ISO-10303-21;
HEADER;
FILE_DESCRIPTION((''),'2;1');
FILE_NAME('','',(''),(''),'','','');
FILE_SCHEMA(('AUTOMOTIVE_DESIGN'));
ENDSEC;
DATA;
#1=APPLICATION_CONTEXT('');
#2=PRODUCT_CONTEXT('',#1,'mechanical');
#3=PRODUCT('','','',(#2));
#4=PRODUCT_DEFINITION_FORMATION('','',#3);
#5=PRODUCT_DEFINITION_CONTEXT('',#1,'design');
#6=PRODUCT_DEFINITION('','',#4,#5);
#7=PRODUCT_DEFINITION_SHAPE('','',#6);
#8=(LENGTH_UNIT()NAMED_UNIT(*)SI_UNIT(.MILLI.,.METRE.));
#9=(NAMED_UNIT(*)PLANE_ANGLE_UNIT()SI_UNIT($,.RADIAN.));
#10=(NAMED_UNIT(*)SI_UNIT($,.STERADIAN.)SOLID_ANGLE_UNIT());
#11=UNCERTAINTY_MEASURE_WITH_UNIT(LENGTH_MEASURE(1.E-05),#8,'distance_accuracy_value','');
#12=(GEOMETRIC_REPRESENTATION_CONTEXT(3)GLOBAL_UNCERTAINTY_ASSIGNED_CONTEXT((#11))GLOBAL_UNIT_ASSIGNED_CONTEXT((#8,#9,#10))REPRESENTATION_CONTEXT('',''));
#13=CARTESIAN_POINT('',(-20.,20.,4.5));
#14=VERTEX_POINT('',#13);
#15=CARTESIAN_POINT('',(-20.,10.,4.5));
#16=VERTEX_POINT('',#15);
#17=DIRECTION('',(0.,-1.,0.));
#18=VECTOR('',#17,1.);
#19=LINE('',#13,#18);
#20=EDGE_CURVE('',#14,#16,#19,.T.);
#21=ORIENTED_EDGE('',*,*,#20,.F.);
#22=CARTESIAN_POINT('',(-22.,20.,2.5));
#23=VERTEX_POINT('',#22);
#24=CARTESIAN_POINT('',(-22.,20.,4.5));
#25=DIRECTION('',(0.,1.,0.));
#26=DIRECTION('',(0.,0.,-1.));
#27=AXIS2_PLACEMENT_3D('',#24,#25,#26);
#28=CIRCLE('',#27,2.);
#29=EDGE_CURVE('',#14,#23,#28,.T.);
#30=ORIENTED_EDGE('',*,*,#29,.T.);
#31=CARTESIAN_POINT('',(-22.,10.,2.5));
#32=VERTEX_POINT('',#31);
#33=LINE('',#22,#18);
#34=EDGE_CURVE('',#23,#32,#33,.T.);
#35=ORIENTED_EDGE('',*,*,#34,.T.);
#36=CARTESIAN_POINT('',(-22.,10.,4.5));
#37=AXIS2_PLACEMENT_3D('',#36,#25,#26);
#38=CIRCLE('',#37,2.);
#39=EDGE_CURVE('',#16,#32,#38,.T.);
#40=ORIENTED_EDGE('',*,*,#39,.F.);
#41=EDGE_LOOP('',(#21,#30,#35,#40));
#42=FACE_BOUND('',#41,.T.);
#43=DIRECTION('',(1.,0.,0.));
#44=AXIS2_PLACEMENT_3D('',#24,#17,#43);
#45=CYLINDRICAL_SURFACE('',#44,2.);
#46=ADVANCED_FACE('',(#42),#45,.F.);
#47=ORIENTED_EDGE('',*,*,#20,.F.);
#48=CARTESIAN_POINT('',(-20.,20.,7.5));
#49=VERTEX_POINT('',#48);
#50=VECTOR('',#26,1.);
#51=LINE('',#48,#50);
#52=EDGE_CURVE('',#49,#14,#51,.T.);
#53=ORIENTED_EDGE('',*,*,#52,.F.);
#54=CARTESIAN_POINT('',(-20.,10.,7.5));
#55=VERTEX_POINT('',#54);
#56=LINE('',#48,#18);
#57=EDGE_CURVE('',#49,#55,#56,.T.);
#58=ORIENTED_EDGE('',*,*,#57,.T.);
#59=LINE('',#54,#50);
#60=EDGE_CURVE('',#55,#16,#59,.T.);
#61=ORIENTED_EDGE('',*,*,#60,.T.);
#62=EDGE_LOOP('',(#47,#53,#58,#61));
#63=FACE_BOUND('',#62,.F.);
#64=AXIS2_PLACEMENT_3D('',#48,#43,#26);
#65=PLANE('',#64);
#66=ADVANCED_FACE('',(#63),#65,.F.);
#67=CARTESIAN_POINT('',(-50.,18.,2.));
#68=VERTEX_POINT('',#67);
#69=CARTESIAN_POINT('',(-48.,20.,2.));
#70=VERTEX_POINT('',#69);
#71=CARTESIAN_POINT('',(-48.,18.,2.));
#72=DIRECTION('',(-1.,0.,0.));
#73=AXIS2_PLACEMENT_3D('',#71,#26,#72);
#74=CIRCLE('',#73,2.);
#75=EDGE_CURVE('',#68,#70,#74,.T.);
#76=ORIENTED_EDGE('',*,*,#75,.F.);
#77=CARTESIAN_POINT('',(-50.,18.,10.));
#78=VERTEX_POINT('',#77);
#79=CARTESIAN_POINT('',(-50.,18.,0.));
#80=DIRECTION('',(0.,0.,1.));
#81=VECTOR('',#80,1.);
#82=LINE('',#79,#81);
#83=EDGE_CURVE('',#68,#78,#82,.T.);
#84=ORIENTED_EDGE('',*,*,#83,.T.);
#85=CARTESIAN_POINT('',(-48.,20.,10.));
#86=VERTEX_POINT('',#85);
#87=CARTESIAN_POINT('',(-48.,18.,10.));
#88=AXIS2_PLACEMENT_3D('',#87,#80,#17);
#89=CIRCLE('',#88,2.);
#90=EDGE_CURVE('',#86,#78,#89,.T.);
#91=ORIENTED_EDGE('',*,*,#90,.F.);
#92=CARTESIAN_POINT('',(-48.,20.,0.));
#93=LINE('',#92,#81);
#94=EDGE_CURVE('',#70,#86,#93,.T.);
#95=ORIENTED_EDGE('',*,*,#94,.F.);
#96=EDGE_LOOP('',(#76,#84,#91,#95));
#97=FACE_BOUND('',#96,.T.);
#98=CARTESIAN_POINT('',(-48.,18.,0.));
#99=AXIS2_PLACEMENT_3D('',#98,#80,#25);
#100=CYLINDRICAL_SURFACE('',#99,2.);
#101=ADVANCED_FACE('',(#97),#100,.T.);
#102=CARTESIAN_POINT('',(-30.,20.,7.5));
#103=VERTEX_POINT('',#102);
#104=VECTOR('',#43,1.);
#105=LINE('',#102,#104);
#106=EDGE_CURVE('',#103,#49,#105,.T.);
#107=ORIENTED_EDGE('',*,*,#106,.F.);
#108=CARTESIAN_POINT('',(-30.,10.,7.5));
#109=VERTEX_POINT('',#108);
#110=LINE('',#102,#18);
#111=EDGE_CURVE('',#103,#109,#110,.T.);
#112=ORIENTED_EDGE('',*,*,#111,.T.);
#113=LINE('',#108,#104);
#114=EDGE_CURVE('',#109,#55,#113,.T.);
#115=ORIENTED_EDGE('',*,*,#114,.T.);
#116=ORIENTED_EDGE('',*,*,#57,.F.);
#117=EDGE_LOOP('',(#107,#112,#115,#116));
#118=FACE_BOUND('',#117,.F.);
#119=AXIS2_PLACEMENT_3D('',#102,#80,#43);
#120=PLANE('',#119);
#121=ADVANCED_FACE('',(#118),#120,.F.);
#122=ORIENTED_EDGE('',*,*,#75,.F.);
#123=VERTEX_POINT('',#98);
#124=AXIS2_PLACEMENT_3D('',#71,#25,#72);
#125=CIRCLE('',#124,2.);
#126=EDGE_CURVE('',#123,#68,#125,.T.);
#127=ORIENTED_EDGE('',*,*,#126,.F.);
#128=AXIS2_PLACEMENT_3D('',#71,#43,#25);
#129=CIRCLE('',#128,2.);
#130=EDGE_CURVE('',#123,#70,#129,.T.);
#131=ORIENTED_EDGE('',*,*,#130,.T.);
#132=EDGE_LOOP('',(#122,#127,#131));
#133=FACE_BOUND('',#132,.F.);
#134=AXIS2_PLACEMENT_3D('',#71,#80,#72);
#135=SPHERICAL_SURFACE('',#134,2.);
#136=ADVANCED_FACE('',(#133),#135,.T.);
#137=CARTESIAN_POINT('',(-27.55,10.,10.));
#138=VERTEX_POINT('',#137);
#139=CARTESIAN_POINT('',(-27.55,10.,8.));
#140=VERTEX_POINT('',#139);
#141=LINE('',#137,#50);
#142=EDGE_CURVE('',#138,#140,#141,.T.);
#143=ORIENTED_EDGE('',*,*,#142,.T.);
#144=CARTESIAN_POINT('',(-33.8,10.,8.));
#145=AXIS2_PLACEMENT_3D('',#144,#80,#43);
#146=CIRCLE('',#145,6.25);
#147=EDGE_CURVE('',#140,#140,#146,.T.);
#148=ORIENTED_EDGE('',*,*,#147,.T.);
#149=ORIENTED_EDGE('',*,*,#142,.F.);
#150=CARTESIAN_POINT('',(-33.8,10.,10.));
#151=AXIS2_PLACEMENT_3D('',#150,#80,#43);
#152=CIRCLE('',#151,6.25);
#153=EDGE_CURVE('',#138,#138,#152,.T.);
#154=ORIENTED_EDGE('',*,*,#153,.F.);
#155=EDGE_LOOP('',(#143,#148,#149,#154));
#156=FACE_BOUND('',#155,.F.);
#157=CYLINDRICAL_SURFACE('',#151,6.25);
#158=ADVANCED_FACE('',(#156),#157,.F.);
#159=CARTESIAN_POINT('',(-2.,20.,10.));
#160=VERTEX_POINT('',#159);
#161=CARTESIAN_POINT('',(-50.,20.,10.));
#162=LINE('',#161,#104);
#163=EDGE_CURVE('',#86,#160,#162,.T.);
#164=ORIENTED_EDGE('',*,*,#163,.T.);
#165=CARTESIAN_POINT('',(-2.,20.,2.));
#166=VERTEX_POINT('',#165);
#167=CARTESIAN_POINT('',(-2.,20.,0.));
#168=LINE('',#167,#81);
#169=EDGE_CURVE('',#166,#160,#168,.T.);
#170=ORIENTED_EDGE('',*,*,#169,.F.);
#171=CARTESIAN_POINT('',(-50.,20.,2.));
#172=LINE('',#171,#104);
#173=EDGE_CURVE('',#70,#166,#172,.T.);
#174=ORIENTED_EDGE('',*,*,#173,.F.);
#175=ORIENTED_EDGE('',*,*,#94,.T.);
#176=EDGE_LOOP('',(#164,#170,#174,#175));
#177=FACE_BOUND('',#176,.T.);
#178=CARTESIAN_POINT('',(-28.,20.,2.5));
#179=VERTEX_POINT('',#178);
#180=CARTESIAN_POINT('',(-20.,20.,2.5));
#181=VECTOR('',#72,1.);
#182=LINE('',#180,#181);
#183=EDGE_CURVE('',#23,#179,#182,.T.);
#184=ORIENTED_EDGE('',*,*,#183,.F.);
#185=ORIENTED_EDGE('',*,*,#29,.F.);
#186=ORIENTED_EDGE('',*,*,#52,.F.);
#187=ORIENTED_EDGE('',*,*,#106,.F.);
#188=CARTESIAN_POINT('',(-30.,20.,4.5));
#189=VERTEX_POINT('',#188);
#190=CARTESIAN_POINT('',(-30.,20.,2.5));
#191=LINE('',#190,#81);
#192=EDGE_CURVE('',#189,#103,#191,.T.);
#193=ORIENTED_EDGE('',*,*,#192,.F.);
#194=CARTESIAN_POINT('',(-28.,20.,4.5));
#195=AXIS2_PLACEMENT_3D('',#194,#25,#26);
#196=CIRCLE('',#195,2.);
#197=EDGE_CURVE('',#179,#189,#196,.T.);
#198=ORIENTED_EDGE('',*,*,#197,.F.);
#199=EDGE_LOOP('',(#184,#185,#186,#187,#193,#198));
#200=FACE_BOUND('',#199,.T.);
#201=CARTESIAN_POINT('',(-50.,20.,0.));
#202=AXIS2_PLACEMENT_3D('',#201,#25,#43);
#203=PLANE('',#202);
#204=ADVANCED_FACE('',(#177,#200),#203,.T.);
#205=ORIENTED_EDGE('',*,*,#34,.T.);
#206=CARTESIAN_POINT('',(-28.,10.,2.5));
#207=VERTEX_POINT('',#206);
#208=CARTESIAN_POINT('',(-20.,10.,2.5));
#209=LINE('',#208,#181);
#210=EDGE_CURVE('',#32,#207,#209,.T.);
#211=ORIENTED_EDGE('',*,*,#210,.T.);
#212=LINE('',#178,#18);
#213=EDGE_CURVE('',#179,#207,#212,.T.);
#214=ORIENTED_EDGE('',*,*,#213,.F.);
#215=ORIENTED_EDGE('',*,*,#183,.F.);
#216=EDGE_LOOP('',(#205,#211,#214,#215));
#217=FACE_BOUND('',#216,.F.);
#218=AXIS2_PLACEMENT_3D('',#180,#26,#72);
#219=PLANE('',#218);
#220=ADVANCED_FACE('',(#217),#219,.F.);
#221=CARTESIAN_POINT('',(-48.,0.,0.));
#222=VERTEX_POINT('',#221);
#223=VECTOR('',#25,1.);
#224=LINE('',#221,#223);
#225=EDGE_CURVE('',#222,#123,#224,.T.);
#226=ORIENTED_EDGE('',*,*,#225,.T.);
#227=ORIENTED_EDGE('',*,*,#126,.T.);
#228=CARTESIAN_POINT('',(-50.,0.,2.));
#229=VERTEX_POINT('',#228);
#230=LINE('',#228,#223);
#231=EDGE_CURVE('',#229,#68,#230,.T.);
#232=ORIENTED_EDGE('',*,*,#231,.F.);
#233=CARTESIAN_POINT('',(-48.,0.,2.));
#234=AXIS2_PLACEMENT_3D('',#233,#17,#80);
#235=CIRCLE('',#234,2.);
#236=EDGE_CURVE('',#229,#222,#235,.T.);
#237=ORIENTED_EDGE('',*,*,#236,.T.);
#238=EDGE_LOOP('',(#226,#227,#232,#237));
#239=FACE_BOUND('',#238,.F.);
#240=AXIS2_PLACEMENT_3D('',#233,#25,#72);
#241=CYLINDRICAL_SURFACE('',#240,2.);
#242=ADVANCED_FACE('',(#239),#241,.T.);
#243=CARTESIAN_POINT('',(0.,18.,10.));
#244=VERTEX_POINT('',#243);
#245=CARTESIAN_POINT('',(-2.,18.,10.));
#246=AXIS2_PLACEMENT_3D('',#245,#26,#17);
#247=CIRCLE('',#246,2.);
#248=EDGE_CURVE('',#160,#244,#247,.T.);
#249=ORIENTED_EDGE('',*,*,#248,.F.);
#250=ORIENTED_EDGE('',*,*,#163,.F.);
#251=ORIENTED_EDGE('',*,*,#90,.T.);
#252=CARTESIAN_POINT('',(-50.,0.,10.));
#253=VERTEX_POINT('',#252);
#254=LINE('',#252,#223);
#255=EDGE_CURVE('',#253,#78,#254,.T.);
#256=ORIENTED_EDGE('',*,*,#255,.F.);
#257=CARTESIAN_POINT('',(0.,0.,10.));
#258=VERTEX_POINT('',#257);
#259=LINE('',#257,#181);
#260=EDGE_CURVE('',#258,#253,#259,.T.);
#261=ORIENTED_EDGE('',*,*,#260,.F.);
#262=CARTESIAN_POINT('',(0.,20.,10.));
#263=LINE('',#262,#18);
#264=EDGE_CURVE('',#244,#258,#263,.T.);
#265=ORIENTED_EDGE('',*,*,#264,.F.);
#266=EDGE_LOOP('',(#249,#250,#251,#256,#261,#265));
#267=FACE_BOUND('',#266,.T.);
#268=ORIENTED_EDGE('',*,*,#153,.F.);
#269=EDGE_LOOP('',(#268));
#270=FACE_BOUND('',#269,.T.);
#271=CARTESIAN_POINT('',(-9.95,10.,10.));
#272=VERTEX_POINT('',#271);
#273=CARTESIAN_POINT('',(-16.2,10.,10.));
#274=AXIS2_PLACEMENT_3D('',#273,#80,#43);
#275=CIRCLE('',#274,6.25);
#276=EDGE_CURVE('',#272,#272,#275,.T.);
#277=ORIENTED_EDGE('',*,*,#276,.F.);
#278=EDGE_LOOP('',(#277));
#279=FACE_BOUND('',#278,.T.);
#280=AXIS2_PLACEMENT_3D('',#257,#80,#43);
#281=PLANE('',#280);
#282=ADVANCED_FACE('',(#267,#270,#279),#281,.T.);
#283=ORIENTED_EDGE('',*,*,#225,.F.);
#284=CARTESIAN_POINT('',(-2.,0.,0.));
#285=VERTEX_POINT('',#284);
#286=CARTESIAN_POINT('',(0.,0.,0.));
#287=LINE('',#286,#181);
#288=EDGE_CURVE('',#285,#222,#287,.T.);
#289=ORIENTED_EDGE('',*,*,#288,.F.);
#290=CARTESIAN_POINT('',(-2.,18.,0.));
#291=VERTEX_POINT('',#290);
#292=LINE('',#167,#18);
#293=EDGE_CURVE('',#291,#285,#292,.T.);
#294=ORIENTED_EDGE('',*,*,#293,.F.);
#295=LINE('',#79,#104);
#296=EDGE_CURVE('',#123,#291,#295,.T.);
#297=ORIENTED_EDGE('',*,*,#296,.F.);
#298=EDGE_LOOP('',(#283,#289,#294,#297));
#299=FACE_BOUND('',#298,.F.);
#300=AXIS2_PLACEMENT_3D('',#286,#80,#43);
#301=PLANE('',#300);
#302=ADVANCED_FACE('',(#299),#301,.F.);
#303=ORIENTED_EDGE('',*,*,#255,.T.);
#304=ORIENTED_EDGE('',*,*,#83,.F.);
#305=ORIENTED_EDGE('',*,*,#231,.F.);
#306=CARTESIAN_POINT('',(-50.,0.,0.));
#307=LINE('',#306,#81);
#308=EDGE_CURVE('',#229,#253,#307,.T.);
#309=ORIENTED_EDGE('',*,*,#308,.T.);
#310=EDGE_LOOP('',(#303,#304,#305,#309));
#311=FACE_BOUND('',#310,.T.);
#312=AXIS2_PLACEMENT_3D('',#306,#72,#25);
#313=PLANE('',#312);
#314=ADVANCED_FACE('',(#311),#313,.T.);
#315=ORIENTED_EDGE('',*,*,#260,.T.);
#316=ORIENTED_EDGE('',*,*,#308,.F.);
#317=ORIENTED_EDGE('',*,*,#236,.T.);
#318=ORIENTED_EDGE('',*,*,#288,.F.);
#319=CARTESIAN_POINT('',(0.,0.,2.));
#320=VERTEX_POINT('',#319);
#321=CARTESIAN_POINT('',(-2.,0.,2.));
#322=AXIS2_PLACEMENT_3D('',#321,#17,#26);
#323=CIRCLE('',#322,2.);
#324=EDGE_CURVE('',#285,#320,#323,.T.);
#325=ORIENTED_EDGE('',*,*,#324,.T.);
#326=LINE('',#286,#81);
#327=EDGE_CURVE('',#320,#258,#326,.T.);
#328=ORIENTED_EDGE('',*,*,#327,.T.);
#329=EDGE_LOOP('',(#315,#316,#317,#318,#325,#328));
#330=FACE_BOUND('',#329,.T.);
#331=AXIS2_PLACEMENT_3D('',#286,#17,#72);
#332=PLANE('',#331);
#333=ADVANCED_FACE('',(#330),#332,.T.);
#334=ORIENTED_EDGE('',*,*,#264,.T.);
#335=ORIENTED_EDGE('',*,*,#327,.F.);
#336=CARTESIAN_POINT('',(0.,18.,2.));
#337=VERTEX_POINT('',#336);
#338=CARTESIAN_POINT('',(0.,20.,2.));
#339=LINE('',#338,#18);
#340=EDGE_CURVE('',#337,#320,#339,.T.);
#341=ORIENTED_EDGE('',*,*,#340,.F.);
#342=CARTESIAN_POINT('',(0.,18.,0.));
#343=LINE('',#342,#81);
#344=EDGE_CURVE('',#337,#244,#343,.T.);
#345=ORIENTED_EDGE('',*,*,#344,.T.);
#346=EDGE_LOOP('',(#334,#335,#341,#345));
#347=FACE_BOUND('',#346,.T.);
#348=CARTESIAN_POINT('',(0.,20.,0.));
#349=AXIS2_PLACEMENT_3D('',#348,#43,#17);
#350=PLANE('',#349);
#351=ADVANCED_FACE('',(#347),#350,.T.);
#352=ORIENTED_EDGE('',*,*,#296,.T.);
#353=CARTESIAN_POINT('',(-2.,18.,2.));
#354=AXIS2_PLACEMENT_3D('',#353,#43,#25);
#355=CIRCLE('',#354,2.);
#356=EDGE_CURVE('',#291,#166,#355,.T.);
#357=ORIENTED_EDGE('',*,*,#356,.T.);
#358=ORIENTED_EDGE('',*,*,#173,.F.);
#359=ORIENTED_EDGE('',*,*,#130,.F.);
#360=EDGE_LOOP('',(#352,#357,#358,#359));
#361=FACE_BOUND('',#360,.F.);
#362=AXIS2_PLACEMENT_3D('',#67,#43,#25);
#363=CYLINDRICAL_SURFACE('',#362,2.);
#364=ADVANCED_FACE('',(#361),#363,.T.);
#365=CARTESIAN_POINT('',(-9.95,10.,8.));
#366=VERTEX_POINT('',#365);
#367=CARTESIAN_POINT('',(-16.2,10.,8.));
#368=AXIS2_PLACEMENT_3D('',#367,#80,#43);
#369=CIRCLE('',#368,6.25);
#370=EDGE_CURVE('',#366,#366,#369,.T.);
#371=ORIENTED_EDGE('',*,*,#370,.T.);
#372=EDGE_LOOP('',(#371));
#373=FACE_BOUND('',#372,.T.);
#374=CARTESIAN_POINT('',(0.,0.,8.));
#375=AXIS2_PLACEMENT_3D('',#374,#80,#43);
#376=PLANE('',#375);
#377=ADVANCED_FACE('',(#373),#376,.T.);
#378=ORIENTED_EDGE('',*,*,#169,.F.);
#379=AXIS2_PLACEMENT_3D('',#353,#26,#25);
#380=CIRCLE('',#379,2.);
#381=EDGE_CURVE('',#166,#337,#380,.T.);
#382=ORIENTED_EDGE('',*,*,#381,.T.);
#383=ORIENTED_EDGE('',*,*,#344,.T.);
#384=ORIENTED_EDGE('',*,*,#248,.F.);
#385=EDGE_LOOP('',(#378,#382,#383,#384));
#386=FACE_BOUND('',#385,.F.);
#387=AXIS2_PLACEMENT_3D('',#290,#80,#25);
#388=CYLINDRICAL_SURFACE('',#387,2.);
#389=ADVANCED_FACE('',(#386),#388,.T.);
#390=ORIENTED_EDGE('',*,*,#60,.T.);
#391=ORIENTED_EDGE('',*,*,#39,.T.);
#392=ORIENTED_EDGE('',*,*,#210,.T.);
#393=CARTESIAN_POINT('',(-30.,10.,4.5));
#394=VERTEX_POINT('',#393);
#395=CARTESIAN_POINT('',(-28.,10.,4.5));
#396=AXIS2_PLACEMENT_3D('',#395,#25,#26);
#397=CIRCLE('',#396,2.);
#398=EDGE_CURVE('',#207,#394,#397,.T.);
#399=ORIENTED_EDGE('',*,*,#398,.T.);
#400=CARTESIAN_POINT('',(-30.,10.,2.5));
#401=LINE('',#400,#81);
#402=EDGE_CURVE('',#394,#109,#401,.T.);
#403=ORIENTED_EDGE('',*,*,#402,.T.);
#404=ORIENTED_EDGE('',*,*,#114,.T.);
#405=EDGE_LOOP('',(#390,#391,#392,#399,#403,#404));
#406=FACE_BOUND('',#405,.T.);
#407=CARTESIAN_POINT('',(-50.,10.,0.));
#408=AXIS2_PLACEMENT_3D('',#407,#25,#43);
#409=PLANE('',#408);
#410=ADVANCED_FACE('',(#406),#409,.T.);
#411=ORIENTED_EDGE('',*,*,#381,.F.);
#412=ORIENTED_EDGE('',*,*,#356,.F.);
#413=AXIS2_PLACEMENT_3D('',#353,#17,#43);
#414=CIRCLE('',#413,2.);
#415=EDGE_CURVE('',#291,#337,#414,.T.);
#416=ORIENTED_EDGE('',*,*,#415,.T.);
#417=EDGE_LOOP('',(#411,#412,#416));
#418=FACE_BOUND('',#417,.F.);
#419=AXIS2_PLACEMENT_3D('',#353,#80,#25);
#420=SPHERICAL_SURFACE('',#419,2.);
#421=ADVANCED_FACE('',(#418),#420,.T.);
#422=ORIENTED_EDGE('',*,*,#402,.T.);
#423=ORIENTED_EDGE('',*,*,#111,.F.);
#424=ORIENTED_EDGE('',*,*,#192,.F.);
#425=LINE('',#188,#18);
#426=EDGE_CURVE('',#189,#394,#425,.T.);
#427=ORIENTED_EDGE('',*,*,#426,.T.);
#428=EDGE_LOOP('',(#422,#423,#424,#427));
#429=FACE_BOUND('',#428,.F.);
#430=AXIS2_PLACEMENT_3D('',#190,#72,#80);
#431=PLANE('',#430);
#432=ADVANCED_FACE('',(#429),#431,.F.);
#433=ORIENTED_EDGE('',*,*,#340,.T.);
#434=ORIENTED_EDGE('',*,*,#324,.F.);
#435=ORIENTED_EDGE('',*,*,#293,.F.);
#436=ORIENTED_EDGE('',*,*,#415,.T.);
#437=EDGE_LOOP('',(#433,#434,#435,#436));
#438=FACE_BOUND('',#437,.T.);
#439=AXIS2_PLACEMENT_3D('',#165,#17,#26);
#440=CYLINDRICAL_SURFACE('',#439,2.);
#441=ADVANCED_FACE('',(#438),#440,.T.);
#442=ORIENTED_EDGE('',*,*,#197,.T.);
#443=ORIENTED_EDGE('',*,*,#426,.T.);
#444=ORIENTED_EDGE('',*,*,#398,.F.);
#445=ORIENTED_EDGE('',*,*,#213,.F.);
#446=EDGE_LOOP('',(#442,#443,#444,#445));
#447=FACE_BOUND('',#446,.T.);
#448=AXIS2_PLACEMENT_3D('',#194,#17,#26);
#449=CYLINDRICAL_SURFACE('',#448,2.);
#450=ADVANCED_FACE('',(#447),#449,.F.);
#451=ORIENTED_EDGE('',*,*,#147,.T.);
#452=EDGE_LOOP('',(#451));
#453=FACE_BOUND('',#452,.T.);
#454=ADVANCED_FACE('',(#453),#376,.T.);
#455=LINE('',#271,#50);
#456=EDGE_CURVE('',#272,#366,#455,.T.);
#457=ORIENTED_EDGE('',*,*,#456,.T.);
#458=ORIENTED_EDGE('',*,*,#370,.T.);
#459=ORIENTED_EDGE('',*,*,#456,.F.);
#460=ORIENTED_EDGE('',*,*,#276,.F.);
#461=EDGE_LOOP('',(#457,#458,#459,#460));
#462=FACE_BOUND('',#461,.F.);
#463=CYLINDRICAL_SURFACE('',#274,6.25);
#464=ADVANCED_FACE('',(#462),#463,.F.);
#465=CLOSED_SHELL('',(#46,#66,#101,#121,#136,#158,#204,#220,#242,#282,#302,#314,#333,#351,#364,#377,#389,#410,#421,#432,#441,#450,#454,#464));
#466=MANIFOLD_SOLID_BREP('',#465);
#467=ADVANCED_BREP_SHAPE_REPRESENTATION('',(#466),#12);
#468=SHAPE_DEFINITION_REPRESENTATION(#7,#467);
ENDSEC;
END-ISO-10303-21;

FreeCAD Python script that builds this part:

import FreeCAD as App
import Part
import Sketcher


def edges_at(feature, points):
    """Names of the edges that pass closest to the given points."""
    edges = feature.Shape.Edges
    near = lambda p: min(range(len(edges)), key=lambda i: edges[i].distToShape(Part.Vertex(*p))[0])
    return sorted({f"Edge{near(p) + 1}" for p in points})

doc = App.newDocument("Part")
body = doc.addObject("PartDesign::Body", "Body")

# Sketch on XY plane
sketch1 = body.newObject("Sketcher::SketchObject", "Sketch")
sketch1.AttachmentSupport = (doc.getObject("XY_Plane"), [""])
sketch1.MapMode = "FlatFace"
sketch1.addGeometry(Part.LineSegment(App.Vector(-50, 0, 0), App.Vector(0, 0, 0)), False)
sketch1.addGeometry(Part.LineSegment(App.Vector(0, 0, 0), App.Vector(0, 20, 0)), False)
sketch1.addGeometry(Part.LineSegment(App.Vector(0, 20, 0), App.Vector(-50, 20, 0)), False)
sketch1.addGeometry(Part.LineSegment(App.Vector(-50, 20, 0), App.Vector(-50, 0, 0)), False)
sketch1.addConstraint(Sketcher.Constraint("Coincident", 0, 2, 1, 1))
sketch1.addConstraint(Sketcher.Constraint("Coincident", 1, 2, 2, 1))
sketch1.addConstraint(Sketcher.Constraint("Coincident", 2, 2, 3, 1))
sketch1.addConstraint(Sketcher.Constraint("Coincident", 3, 2, 0, 1))
sketch1.addConstraint(Sketcher.Constraint("Horizontal", 0))
sketch1.addConstraint(Sketcher.Constraint("Vertical", 1))
sketch1.addConstraint(Sketcher.Constraint("Horizontal", 2))
sketch1.addConstraint(Sketcher.Constraint("Vertical", 3))
sketch1.addConstraint(Sketcher.Constraint("Coincident", 0, 2, -1, 1))
sketch1.addConstraint(Sketcher.Constraint("DistanceX", 0, 1, 0, 2, 50.0))
sketch1.addConstraint(Sketcher.Constraint("DistanceY", 1, 1, 1, 2, 20.0))
pad1 = body.newObject("PartDesign::Pad", "Pad")
pad1.Profile = sketch1
pad1.Length = 10

# Sketch on XY plane
sketch2 = body.newObject("Sketcher::SketchObject", "Sketch001")
sketch2.AttachmentSupport = (doc.getObject("XY_Plane"), [""])
sketch2.MapMode = "FlatFace"
sketch2.AttachmentOffset = App.Placement(App.Vector(0, 0, 10), App.Rotation())
sketch2.addGeometry(Part.Circle(App.Vector(-33.8, 10, 0), App.Vector(0, 0, 1), 6.25), False)
sketch2.addGeometry(Part.Circle(App.Vector(-16.2, 10, 0), App.Vector(0, 0, 1), 6.25), False)
sketch2.addConstraint(Sketcher.Constraint("Equal", 0, 1))
sketch2.addConstraint(Sketcher.Constraint("Horizontal", 0, 3, 1, 3))
sketch2.addConstraint(Sketcher.Constraint("Diameter", 0, 12.5))
sketch2.addConstraint(Sketcher.Constraint("DistanceY", -1, 1, 0, 3, 10.0))
sketch2.addConstraint(Sketcher.Constraint("DistanceX", 0, 3, -1, 1, 33.8))
sketch2.addConstraint(Sketcher.Constraint("DistanceX", 1, 3, -1, 1, 16.2))
pocket1 = body.newObject("PartDesign::Pocket", "Pocket")
pocket1.Profile = sketch2
pocket1.Length = 2

# Sketch on XZ plane
sketch3 = body.newObject("Sketcher::SketchObject", "Sketch002")
sketch3.AttachmentSupport = (doc.getObject("XZ_Plane"), [""])
sketch3.MapMode = "FlatFace"
sketch3.AttachmentOffset = App.Placement(App.Vector(0, 0, -20), App.Rotation())
sketch3.addGeometry(Part.LineSegment(App.Vector(-20, 7.5, 0), App.Vector(-20, 2.5, 0)), False)
sketch3.addGeometry(Part.LineSegment(App.Vector(-20, 2.5, 0), App.Vector(-30, 2.5, 0)), False)
sketch3.addGeometry(Part.LineSegment(App.Vector(-30, 2.5, 0), App.Vector(-30, 7.5, 0)), False)
sketch3.addGeometry(Part.LineSegment(App.Vector(-30, 7.5, 0), App.Vector(-20, 7.5, 0)), False)
sketch3.addConstraint(Sketcher.Constraint("Coincident", 0, 2, 1, 1))
sketch3.addConstraint(Sketcher.Constraint("Coincident", 1, 2, 2, 1))
sketch3.addConstraint(Sketcher.Constraint("Coincident", 2, 2, 3, 1))
sketch3.addConstraint(Sketcher.Constraint("Coincident", 3, 2, 0, 1))
sketch3.addConstraint(Sketcher.Constraint("Vertical", 0))
sketch3.addConstraint(Sketcher.Constraint("Horizontal", 1))
sketch3.addConstraint(Sketcher.Constraint("Vertical", 2))
sketch3.addConstraint(Sketcher.Constraint("Horizontal", 3))
sketch3.addConstraint(Sketcher.Constraint("DistanceX", 1, 2, 1, 1, 10.0))
sketch3.addConstraint(Sketcher.Constraint("DistanceY", 0, 2, 0, 1, 5.0))
sketch3.addConstraint(Sketcher.Constraint("DistanceX", 0, 2, -1, 1, 20.0))
sketch3.addConstraint(Sketcher.Constraint("DistanceY", -1, 1, 0, 2, 2.5))
pocket2 = body.newObject("PartDesign::Pocket", "Pocket001")
pocket2.Profile = sketch3
pocket2.Length = 10
pocket2.Reversed = True
doc.recompute()

fillet = body.newObject("PartDesign::Fillet", "Fillet")
fillet.Base = (pocket2, edges_at(pocket2, [(-30, 15, 2.5), (-20, 15, 2.5)]))
fillet.Radius = 2
doc.recompute()

fillet2 = body.newObject("PartDesign::Fillet", "Fillet001")
fillet2.Base = (fillet, edges_at(fillet, [
    (0, 20, 5),
    (-50, 20, 5),
    (-50, 10, 0),
    (-25, 20, 0),
    (0, 10, 0),
]))
fillet2.Radius = 2

doc.recompute()
